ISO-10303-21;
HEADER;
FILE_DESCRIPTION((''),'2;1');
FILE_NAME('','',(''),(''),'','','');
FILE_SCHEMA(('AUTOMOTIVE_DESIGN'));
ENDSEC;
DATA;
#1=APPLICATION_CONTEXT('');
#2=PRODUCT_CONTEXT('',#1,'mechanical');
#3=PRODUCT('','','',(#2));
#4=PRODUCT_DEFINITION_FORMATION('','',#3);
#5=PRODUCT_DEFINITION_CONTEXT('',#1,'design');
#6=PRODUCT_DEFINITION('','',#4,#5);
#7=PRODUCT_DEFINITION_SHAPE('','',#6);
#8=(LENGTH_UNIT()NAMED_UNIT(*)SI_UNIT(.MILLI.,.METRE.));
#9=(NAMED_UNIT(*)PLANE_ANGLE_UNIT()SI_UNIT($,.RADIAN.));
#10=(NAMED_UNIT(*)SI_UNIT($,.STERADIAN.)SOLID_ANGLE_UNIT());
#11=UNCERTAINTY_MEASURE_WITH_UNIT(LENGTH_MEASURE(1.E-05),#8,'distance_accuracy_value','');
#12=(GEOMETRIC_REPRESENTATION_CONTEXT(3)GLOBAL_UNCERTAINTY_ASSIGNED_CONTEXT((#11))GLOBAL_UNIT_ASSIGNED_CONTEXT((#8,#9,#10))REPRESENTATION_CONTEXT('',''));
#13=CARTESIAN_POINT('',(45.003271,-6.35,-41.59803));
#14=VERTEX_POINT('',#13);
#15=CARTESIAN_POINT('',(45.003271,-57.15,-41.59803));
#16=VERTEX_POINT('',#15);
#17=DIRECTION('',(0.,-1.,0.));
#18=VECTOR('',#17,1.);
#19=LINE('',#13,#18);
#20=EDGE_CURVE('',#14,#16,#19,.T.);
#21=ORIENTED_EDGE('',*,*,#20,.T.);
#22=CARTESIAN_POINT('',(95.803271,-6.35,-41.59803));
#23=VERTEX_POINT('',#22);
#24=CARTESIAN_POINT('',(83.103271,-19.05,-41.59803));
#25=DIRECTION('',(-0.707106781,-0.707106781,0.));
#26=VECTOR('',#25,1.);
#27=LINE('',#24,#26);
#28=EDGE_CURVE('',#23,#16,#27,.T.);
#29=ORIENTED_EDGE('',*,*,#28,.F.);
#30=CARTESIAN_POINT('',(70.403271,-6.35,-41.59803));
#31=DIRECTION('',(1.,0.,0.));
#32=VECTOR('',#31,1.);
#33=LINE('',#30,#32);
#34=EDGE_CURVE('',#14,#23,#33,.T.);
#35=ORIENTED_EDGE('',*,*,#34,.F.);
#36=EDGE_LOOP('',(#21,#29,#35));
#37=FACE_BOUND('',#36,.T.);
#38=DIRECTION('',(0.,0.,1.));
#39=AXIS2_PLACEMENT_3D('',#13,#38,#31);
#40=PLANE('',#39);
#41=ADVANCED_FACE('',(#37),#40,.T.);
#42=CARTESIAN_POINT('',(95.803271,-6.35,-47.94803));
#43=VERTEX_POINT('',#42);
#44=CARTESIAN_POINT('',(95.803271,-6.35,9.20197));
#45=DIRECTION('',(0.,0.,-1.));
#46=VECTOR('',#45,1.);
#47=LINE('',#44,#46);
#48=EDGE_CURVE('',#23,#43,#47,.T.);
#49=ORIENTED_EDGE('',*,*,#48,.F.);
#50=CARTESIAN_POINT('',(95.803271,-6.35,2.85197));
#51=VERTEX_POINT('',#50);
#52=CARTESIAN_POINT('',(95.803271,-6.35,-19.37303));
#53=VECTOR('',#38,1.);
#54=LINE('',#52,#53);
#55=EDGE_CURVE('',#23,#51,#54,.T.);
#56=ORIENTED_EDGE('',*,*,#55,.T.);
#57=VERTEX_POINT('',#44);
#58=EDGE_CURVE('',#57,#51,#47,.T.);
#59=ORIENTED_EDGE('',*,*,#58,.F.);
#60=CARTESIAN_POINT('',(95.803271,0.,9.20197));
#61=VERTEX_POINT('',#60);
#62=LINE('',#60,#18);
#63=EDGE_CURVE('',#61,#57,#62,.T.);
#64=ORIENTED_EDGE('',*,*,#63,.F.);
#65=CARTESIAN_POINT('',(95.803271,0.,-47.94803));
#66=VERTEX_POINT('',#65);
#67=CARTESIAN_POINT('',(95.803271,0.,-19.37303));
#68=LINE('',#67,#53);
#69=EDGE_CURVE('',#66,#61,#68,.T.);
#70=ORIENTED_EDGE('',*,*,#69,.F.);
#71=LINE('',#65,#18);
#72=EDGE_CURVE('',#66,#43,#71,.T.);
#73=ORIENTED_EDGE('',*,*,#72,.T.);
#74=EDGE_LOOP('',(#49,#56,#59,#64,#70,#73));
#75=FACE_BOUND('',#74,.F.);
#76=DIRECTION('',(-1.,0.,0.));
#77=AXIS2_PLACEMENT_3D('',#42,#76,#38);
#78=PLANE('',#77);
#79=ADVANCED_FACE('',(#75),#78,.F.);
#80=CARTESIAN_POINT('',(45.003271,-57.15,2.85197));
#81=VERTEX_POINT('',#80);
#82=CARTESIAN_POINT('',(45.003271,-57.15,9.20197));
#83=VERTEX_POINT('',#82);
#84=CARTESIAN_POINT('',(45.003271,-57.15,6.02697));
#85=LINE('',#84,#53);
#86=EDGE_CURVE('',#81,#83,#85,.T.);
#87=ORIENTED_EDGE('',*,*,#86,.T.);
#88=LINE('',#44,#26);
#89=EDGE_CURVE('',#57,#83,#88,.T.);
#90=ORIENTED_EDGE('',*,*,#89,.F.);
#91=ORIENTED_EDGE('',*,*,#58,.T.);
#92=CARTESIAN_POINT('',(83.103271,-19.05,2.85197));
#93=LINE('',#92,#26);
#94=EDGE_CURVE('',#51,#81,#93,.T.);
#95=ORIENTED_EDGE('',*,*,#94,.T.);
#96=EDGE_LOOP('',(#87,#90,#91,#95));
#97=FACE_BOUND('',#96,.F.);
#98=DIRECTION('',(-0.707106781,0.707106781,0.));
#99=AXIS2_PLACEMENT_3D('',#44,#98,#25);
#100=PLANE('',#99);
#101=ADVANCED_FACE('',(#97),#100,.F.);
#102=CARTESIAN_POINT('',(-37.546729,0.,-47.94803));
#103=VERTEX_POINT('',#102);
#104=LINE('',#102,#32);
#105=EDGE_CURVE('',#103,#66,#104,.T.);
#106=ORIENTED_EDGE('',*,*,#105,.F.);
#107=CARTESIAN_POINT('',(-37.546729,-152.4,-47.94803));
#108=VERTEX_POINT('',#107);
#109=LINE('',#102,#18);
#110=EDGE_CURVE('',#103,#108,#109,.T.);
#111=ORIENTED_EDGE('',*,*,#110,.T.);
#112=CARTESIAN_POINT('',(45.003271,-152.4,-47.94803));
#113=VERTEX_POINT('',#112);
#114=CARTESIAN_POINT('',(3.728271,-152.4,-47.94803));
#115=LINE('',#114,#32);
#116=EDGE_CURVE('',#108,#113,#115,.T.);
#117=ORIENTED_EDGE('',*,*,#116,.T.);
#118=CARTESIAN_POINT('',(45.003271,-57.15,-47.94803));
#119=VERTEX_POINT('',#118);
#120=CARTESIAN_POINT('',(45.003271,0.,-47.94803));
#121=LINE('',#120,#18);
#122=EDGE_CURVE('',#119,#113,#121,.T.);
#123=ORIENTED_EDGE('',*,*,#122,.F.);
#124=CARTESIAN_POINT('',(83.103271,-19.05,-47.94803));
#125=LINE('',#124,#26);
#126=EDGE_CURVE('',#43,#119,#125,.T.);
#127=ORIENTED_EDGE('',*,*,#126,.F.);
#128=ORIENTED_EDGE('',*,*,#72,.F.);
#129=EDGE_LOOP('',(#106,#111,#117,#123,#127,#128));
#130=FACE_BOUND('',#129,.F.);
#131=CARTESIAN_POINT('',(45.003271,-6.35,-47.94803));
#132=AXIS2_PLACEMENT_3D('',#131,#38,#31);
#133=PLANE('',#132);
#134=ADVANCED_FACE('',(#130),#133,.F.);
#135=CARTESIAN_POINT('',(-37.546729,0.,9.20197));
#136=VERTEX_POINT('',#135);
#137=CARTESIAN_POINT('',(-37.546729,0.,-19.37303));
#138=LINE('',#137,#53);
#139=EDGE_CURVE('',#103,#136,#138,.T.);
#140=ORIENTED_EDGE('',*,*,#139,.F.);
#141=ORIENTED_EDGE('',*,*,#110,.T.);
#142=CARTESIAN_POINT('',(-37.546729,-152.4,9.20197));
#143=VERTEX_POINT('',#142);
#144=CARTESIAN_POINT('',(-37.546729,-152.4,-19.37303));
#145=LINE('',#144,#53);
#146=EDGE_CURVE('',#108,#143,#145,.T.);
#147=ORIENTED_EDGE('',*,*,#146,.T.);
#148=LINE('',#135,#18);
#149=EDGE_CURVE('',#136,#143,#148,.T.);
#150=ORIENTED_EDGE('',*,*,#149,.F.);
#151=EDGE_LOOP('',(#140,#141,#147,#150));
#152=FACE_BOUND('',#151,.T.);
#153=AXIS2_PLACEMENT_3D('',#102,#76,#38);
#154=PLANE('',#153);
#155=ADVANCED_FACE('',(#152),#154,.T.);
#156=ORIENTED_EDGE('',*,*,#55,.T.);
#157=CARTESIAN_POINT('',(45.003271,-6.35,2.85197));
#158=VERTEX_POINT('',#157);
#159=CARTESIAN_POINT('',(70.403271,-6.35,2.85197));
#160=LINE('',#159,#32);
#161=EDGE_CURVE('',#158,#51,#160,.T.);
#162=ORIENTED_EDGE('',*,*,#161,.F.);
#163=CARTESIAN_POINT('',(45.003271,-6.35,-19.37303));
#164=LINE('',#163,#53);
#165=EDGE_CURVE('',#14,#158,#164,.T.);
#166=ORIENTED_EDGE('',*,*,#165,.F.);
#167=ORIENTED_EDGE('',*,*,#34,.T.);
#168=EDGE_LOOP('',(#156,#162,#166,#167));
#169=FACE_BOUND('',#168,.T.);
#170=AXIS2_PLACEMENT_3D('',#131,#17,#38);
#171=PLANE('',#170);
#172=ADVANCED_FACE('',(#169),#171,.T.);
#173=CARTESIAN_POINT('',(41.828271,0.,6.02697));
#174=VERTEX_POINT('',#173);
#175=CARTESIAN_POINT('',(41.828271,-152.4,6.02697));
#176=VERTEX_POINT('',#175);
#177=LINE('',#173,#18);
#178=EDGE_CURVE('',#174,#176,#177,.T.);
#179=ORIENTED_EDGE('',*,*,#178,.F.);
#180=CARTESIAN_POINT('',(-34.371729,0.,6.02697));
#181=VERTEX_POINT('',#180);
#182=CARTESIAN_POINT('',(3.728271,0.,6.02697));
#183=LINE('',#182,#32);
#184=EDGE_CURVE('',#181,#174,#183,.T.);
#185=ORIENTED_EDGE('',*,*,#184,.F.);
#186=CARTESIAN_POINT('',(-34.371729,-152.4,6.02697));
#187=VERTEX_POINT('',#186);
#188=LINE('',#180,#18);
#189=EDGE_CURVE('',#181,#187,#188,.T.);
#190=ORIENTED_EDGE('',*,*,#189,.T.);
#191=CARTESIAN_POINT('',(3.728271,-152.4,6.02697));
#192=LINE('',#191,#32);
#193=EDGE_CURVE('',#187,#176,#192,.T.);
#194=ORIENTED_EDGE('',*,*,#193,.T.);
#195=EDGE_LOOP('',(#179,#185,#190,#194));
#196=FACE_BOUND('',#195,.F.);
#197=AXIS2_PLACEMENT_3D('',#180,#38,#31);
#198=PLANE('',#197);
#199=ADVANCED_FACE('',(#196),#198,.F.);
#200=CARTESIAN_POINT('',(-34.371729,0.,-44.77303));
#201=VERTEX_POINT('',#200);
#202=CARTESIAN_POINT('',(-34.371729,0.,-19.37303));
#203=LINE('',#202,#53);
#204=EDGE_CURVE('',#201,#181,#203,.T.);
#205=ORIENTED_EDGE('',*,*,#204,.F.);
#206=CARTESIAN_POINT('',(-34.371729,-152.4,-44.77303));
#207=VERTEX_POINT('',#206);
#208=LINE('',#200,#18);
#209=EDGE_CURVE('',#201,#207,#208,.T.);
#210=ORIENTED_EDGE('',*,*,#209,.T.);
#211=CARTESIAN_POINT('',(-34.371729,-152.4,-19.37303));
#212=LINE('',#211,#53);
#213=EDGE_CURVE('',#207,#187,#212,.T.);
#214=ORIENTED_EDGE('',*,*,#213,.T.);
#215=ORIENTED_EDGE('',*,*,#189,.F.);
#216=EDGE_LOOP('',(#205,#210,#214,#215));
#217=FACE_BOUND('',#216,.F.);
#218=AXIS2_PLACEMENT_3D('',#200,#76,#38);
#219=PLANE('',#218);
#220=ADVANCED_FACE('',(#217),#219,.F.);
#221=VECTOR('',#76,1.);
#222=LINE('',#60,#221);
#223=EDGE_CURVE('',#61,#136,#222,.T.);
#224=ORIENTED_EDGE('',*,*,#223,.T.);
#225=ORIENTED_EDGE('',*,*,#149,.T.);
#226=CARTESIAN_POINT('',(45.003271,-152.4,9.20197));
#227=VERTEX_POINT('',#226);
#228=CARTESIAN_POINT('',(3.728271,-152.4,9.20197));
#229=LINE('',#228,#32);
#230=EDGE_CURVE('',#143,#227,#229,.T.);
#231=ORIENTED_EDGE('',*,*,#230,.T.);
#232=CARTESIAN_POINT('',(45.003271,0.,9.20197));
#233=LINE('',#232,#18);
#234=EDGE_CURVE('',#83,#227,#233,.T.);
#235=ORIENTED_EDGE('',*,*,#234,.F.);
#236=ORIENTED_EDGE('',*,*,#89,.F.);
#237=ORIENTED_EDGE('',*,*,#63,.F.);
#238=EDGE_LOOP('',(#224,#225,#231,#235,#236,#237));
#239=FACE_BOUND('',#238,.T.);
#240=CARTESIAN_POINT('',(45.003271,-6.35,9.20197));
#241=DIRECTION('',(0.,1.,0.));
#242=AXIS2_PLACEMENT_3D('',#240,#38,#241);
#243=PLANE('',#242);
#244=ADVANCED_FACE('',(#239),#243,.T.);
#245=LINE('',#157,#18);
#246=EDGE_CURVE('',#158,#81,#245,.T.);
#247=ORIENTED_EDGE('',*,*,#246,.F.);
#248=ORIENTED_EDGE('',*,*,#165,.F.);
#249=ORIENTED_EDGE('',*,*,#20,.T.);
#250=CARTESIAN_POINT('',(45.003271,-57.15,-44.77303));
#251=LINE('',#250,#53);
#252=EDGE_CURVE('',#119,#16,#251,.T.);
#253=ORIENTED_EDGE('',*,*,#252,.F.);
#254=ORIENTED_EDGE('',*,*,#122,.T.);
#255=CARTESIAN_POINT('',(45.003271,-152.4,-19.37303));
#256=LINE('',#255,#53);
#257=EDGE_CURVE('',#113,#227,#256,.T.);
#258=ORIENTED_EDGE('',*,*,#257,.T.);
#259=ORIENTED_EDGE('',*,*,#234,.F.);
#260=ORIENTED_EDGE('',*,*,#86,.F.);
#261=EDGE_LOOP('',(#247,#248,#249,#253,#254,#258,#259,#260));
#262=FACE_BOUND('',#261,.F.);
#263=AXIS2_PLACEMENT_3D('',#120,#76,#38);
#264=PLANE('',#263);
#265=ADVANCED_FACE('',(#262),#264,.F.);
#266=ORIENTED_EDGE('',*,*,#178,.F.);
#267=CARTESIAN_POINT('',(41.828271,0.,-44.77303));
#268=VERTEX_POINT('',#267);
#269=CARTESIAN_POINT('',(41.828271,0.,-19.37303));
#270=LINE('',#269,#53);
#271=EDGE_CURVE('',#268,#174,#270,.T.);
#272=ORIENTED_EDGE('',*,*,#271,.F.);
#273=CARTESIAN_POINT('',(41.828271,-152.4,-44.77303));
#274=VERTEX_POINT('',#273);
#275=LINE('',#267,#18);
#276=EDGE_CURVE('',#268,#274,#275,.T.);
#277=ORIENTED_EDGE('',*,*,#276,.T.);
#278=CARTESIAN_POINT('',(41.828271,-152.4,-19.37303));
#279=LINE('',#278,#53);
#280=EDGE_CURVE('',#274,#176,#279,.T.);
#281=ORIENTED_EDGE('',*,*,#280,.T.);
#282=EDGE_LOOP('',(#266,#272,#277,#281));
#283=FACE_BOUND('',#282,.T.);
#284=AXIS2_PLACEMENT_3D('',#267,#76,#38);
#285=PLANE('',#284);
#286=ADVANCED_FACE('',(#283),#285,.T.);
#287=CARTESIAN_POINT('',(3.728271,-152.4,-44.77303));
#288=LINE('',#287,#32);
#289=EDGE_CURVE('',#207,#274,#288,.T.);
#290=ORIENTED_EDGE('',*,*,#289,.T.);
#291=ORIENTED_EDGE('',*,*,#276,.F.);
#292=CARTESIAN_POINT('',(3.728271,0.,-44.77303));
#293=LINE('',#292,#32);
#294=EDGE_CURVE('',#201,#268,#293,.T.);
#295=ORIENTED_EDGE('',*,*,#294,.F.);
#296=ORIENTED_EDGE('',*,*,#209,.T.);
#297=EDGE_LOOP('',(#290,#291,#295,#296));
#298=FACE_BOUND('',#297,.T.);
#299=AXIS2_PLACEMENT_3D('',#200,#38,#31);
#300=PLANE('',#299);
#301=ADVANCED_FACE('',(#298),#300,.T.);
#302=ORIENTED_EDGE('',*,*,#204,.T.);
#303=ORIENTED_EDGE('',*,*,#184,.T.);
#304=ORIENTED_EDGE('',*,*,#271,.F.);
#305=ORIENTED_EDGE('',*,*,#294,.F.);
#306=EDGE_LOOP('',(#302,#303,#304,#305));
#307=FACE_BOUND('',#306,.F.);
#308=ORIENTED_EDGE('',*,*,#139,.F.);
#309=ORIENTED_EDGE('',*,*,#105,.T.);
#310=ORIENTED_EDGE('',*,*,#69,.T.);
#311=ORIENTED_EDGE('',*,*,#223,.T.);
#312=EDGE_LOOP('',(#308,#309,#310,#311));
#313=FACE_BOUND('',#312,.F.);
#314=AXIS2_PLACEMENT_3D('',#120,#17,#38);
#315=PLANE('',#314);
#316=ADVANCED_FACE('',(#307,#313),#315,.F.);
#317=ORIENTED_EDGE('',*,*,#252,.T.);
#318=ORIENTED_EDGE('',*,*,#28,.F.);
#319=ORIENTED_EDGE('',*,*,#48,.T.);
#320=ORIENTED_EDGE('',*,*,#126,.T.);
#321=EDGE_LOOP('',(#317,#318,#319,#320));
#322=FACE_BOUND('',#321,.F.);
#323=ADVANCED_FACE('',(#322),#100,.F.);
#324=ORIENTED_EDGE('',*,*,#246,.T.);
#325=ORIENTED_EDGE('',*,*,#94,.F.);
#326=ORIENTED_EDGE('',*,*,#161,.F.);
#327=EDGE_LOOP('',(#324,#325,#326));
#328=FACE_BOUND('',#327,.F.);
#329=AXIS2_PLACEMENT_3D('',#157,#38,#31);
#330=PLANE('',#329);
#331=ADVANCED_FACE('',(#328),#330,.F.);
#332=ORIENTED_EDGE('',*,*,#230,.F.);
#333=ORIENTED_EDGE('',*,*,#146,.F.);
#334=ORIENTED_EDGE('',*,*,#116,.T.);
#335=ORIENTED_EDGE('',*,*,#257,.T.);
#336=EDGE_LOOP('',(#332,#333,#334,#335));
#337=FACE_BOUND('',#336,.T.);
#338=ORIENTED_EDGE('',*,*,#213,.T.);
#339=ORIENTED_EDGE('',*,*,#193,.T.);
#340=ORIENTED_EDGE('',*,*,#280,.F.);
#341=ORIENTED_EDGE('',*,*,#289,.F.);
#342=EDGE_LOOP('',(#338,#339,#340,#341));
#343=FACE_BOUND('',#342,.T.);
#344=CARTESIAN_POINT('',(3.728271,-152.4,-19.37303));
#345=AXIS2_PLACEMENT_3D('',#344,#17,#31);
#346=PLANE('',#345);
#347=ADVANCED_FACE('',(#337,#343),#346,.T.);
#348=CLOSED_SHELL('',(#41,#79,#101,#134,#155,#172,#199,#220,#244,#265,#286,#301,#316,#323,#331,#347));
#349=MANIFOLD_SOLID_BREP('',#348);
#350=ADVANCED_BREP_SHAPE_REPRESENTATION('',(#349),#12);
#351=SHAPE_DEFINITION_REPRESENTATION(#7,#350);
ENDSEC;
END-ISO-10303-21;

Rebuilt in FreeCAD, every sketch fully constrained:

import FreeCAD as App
import Part
import Sketcher
from FreeCAD import Vector
Q = App.Units.Quantity


def add_polygon(sketch, points):
    """Adds a closed chain of lines whose ends are joined by coincident constraints."""
    first, n = sketch.GeometryCount, len(points)
    for a, b in zip(points, points[1:] + points[:1]):
        sketch.addGeometry(Part.LineSegment(App.Vector(*a, 0), App.Vector(*b, 0)), False)
    for i in range(n):
        sketch.addConstraint(Sketcher.Constraint("Coincident", first + i, 2, first + (i + 1) % n, 1))

doc = App.newDocument("Part")
body = doc.addObject("PartDesign::Body", "Body")

sketch1 = body.newObject("Sketcher::SketchObject", "Sketch")
sketch1.AttachmentSupport = (doc.getObject("XZ_Plane"), [""])
sketch1.MapMode = "FlatFace"
add_polygon(sketch1, [(-38, 9), (-38, -48), (45, -48), (45, 9)])
add_polygon(sketch1, [(42, -45), (-34, -45), (-34, 6), (42, 6)])
sketch1.addConstraint(Sketcher.Constraint("Vertical", 0))
sketch1.addConstraint(Sketcher.Constraint("Horizontal", 1))
sketch1.addConstraint(Sketcher.Constraint("Vertical", 2))
sketch1.addConstraint(Sketcher.Constraint("Horizontal", 3))
sketch1.addConstraint(Sketcher.Constraint("Horizontal", 4))
sketch1.addConstraint(Sketcher.Constraint("Vertical", 5))
sketch1.addConstraint(Sketcher.Constraint("Horizontal", 6))
sketch1.addConstraint(Sketcher.Constraint("Vertical", 7))
sketch1.addConstraint(Sketcher.Constraint("DistanceX", 4, 2, 4, 1, Q("3 in")))
sketch1.addConstraint(Sketcher.Constraint("DistanceY", 5, 1, 5, 2, Q("2 in")))
sketch1.addConstraint(Sketcher.Constraint("DistanceX", 1, 1, 1, 2, Q("3.25 in")))
sketch1.addConstraint(Sketcher.Constraint("DistanceY", 0, 2, 0, 1, Q("2.25 in")))
sketch1.addConstraint(Sketcher.Constraint("DistanceX", 0, 2, 4, 2, Q("0.125 in")))
sketch1.addConstraint(Sketcher.Constraint("DistanceY", 0, 2, 4, 2, Q("0.125 in")))
sketch1.addConstraint(Sketcher.Constraint("DistanceX", 0, 2, -1, 1, 37.546729))
sketch1.addConstraint(Sketcher.Constraint("DistanceY", 0, 2, -1, 1, 47.94803))
pad1 = body.newObject("PartDesign::Pad", "Pad")
pad1.Profile = sketch1
pad1.Length = Q("6 in")

sketch2 = body.newObject("Sketcher::SketchObject", "Sketch001")
sketch2.AttachmentSupport = (doc.getObject("YZ_Plane"), [""])
sketch2.MapMode = "FlatFace"
sketch2.AttachmentOffset = App.Placement(Vector(0, 0, 45.003271), App.Rotation())
add_polygon(sketch2, [(-6, 9), (-6, -48), (0, -48), (0, 9)])
sketch2.addConstraint(Sketcher.Constraint("Vertical", 0))
sketch2.addConstraint(Sketcher.Constraint("Horizontal", 1))
sketch2.addConstraint(Sketcher.Constraint("Vertical", 2))
sketch2.addConstraint(Sketcher.Constraint("Horizontal", 3))
sketch2.addConstraint(Sketcher.Constraint("PointOnObject", 1, 2, -2))
sketch2.addConstraint(Sketcher.Constraint("DistanceX", 1, 1, 1, 2, Q("0.25 in")))
sketch2.addConstraint(Sketcher.Constraint("DistanceY", 0, 2, 0, 1, Q("2.25 in")))
sketch2.addConstraint(Sketcher.Constraint("DistanceY", 0, 2, -1, 1, 47.94803))
pad2 = body.newObject("PartDesign::Pad", "Pad001")
pad2.Profile = sketch2
pad2.Length = Q("2 in")

sketch3 = body.newObject("Sketcher::SketchObject", "Sketch002")
sketch3.AttachmentSupport = (doc.getObject("XZ_Plane"), [""])
sketch3.MapMode = "FlatFace"
sketch3.AttachmentOffset = App.Placement(Vector(0, 0, 0.25 * 25.4), App.Rotation())
add_polygon(sketch3, [(45, -42), (45, -48), (96, -48), (96, -42)])
add_polygon(sketch3, [(45, 9), (45, 3), (96, 3), (96, 9)])
sketch3.addConstraint(Sketcher.Constraint("Vertical", 0))
sketch3.addConstraint(Sketcher.Constraint("Horizontal", 1))
sketch3.addConstraint(Sketcher.Constraint("Vertical", 2))
sketch3.addConstraint(Sketcher.Constraint("Horizontal", 3))
sketch3.addConstraint(Sketcher.Constraint("Vertical", 4))
sketch3.addConstraint(Sketcher.Constraint("Horizontal", 5))
sketch3.addConstraint(Sketcher.Constraint("Vertical", 6))
sketch3.addConstraint(Sketcher.Constraint("Horizontal", 7))
sketch3.addConstraint(Sketcher.Constraint("Vertical", 3, 2, 4, 2))
sketch3.addConstraint(Sketcher.Constraint("Vertical", 2, 2, 5, 2))
sketch3.addConstraint(Sketcher.Constraint("Equal", 2, 4))
sketch3.addConstraint(Sketcher.Constraint("DistanceX", 1, 1, 1, 2, Q("2 in")))
sketch3.addConstraint(Sketcher.Constraint("DistanceY", 0, 2, 4, 2, Q("2 in")))
sketch3.addConstraint(Sketcher.Constraint("DistanceY", 0, 2, 0, 1, Q("0.25 in")))
sketch3.addConstraint(Sketcher.Constraint("DistanceX", -1, 1, 0, 2, 45.003271))
sketch3.addConstraint(Sketcher.Constraint("DistanceY", 0, 2, -1, 1, 47.94803))
pad3 = body.newObject("PartDesign::Pad", "Pad002")
pad3.Profile = sketch3
pad3.Length = Q("2 in")

sketch4 = body.newObject("Sketcher::SketchObject", "Sketch003")
sketch4.AttachmentSupport = (doc.getObject("XY_Plane"), [""])
sketch4.MapMode = "FlatFace"
sketch4.AttachmentOffset = App.Placement(Vector(0, 0, 9.20197), App.Rotation())
add_polygon(sketch4, [(96, -6), (45, -57), (96, -57)])
sketch4.addConstraint(Sketcher.Constraint("Horizontal", 1))
sketch4.addConstraint(Sketcher.Constraint("Vertical", 2))
sketch4.addConstraint(Sketcher.Constraint("Equal", 1, 2))
sketch4.addConstraint(Sketcher.Constraint("DistanceX", 1, 1, 1, 2, Q("2 in")))
sketch4.addConstraint(Sketcher.Constraint("DistanceY", 0, 2, -1, 1, Q("2.25 in")))
sketch4.addConstraint(Sketcher.Constraint("DistanceX", -1, 1, 0, 2, 45.003271))
pocket1 = body.newObject("PartDesign::Pocket", "Pocket")
pocket1.Profile = sketch4
pocket1.Length = Q("4.67 in")

doc.recompute()
